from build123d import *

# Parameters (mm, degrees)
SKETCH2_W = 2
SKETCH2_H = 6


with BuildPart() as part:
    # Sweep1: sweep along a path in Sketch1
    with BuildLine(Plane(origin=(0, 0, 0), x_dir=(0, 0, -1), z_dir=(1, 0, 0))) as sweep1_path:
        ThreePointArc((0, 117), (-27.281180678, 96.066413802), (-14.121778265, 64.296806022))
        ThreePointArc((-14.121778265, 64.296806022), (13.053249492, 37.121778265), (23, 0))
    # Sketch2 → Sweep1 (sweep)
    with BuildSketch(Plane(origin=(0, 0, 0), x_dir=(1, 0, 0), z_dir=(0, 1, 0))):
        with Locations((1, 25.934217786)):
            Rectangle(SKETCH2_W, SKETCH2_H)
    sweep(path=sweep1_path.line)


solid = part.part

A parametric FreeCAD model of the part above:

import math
import FreeCAD as App
import Part
import Sketcher

V = App.Vector
Q = App.Units.Quantity


def add_polygon(sketch, points):
    """Adds a closed chain of lines whose ends are joined by coincident constraints."""
    first, n = sketch.GeometryCount, len(points)
    for a, b in zip(points, points[1:] + points[:1]):
        sketch.addGeometry(Part.LineSegment(App.Vector(*a, 0), App.Vector(*b, 0)), False)
    for i in range(n):
        sketch.addConstraint(Sketcher.Constraint("Coincident", first + i, 2, first + (i + 1) % n, 1))

doc = App.newDocument("Part")
body = doc.addObject("PartDesign::Body", "Body")

# Sketch on XZ plane
sketch1 = body.newObject("Sketcher::SketchObject", "Sketch")
sketch1.AttachmentSupport = (doc.getObject("XZ_Plane"), [""])
sketch1.MapMode = "FlatFace"
add_polygon(sketch1, [(0, -28.9), (0, -22.9), (2, -22.9), (2, -28.9)])  # lines 0-3
sketch1.addConstraint(Sketcher.Constraint("Vertical", 0))
sketch1.addConstraint(Sketcher.Constraint("Horizontal", 1))
sketch1.addConstraint(Sketcher.Constraint("Vertical", 2))
sketch1.addConstraint(Sketcher.Constraint("Horizontal", 3))
sketch1.addConstraint(Sketcher.Constraint("PointOnObject", 0, 2, -2))
sketch1.addConstraint(Sketcher.Constraint("DistanceX", 1, 1, 1, 2, Q("2 mm")))
sketch1.addConstraint(Sketcher.Constraint("DistanceY", 0, 1, 0, 2, Q("6 mm")))
sketch1.addConstraint(Sketcher.Constraint("DistanceY", 0, 2, -1, 1, Q("22.934218 mm")))

# Sketch on YZ plane
sketch2 = body.newObject("Sketcher::SketchObject", "Sketch001")
sketch2.AttachmentSupport = (doc.getObject("YZ_Plane"), [""])
sketch2.MapMode = "FlatFace"
sketch2.addGeometry(Part.ArcOfCircle(Part.Circle(V(89, 0, 0), V(0, 0, 1), 28), math.radians(0), math.radians(150)), False)
sketch2.addGeometry(Part.ArcOfCircle(Part.Circle(V(0, 51, 0), V(0, 0, 1), 74), math.radians(-90), math.radians(-30)), False)
sketch2.addConstraint(Sketcher.Constraint("Tangent", 0, 2, 1, 2))
sketch2.addConstraint(Sketcher.Constraint("PointOnObject", 0, 3, -1))
sketch2.addConstraint(Sketcher.Constraint("PointOnObject", 1, 3, -2))
sketch2.addConstraint(Sketcher.Constraint("PointOnObject", 0, 1, -1))
sketch2.addConstraint(Sketcher.Constraint("PointOnObject", 1, 1, -2))
sketch2.addConstraint(Sketcher.Constraint("DistanceX", -1, 1, 0, 1, Q("117 mm")))
sketch2.addConstraint(Sketcher.Constraint("DistanceY", 1, 1, -1, 1, Q("23 mm")))
sketch2.addConstraint(Sketcher.Constraint("Radius", 0, Q("28.243557 mm")))
doc.recompute()

additivepipe = body.newObject("PartDesign::AdditivePipe", "AdditivePipe")
additivepipe.Profile = sketch1
additivepipe.Spine = (sketch2, ["Edge1", "Edge2"])

doc.recompute()
